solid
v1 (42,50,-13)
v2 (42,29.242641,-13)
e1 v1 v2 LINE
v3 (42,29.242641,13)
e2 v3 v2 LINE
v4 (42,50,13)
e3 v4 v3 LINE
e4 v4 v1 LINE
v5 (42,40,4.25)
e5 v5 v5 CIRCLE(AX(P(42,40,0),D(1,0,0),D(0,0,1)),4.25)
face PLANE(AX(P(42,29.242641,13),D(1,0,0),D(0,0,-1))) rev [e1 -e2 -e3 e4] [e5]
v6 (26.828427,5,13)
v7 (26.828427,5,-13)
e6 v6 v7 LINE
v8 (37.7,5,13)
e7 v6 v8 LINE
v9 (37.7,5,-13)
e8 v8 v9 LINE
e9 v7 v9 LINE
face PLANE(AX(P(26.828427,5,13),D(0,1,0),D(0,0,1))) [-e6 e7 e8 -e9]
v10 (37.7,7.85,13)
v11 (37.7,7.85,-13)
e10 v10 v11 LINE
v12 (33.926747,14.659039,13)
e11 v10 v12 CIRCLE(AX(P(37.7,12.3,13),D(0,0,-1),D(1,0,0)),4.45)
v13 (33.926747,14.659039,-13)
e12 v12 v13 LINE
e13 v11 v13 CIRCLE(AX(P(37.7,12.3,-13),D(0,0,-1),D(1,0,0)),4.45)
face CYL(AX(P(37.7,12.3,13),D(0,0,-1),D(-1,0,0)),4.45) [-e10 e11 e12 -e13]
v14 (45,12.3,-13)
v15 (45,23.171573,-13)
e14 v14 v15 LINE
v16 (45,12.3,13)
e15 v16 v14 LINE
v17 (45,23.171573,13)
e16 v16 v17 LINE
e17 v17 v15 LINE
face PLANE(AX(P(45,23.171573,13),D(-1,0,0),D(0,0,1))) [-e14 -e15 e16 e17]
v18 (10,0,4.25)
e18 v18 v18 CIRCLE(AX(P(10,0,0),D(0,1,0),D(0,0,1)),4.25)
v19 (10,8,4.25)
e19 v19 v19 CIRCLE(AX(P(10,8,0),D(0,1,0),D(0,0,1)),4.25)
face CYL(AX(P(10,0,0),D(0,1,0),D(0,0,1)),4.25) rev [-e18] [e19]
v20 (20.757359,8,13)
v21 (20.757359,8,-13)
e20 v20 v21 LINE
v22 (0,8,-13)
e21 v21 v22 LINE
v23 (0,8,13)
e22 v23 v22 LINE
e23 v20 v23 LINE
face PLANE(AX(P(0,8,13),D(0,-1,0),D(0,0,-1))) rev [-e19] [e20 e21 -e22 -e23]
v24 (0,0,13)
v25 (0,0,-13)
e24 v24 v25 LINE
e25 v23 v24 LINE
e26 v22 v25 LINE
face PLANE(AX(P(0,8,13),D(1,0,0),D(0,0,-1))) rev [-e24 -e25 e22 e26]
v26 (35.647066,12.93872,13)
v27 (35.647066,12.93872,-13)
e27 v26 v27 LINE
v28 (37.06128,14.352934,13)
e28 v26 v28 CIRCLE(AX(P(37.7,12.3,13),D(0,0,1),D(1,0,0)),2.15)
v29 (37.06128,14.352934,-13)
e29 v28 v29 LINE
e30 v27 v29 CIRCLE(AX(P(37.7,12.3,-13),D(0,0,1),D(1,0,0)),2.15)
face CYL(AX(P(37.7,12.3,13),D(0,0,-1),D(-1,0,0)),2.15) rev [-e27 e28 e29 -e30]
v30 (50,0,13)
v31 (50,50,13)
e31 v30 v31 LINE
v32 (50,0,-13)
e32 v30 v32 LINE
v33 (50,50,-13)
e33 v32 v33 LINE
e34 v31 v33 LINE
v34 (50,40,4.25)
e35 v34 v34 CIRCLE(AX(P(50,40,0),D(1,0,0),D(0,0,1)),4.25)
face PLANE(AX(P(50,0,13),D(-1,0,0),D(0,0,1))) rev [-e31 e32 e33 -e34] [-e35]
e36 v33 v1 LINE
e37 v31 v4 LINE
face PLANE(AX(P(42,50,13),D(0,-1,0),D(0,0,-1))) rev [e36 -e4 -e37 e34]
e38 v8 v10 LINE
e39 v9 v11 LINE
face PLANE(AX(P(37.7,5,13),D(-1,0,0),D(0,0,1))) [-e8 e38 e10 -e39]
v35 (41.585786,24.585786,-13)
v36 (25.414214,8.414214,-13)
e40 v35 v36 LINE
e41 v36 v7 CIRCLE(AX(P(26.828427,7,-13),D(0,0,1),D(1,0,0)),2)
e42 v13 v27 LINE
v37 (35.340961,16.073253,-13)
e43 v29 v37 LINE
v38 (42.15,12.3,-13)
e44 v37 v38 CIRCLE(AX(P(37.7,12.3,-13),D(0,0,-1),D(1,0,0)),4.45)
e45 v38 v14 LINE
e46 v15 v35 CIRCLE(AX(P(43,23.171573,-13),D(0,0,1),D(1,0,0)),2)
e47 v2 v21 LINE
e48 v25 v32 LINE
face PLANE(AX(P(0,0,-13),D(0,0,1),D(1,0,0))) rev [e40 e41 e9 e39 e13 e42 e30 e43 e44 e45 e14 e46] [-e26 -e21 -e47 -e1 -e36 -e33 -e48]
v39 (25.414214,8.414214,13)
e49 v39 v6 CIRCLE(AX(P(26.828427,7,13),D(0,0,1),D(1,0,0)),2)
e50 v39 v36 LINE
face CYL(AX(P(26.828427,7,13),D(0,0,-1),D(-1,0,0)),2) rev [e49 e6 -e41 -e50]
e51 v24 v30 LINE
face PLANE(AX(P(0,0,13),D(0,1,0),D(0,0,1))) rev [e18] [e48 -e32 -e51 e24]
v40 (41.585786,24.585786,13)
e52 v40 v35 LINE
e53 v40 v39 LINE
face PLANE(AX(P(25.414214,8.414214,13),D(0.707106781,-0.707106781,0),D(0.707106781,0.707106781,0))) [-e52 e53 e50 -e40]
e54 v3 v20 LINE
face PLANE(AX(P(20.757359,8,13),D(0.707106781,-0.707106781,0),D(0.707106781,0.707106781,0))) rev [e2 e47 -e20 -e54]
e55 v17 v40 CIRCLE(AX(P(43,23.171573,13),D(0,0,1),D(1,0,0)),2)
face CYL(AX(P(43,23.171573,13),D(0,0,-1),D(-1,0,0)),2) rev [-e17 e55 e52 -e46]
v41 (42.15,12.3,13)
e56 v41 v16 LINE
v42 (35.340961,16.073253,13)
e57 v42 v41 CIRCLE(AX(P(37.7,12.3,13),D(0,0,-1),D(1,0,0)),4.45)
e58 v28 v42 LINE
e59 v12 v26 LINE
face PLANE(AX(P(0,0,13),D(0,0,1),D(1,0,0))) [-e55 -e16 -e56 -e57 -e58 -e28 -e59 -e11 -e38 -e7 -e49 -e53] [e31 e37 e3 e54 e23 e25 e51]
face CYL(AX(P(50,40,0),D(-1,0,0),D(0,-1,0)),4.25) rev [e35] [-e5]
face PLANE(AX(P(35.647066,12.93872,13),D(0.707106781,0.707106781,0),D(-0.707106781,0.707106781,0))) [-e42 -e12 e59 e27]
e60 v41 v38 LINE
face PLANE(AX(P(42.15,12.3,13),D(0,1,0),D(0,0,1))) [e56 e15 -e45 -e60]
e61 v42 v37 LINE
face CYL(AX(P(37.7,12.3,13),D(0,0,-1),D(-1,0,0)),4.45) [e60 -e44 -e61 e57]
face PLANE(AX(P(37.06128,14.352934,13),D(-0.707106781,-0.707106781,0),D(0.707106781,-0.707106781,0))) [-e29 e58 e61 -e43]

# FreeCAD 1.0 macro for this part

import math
import FreeCAD as App
import Part
import Sketcher

V = App.Vector

doc = App.newDocument("Part")
body = doc.addObject("PartDesign::Body", "Body")

# Sketch on XY plane
sketch1 = doc.addObject("Sketcher::SketchObject", "Sketch")
body.addObject(sketch1)
sketch1.AttachmentSupport = (doc.XY_Plane, [""])
sketch1.MapMode = "FlatFace"
sketch1.addGeometry([
    Part.LineSegment(V(0, 0, 0), V(50, 0, 0)),  # 0
    Part.LineSegment(V(50, 0, 0), V(50, 50, 0)),  # 1
    Part.LineSegment(V(50, 50, 0), V(42, 50, 0)),  # 2
    Part.LineSegment(V(42, 50, 0), V(42, 29.2, 0)),  # 3
    Part.LineSegment(V(42, 29.2, 0), V(20.8, 8, 0)),  # 4
    Part.LineSegment(V(20.8, 8, 0), V(0, 8, 0)),  # 5
    Part.LineSegment(V(0, 8, 0), V(0, 0, 0)),  # 6
    Part.LineSegment(V(35.3, 16.1, 0), V(37.1, 14.4, 0)),  # 7
    Part.ArcOfCircle(Part.Circle(V(37.7, 12.3, 0), V(0, 0, 1), 2.1), math.radians(163), math.radians(467)),  # 8
    Part.LineSegment(V(35.6, 12.9, 0), V(33.9, 14.7, 0)),  # 9
    Part.ArcOfCircle(Part.Circle(V(37.7, 12.3, 0), V(0, 0, 1), 4.5), math.radians(148), math.radians(270)),  # 10
    Part.LineSegment(V(37.7, 7.8, 0), V(37.7, 5, 0)),  # 11
    Part.LineSegment(V(37.7, 5, 0), V(26.8, 5, 0)),  # 12
    Part.ArcOfCircle(Part.Circle(V(26.8, 7, 0), V(0, 0, 1), 2), math.radians(135), math.radians(270)),  # 13
    Part.LineSegment(V(25.4, 8.4, 0), V(41.6, 24.6, 0)),  # 14
    Part.ArcOfCircle(Part.Circle(V(43, 23.2, 0), V(0, 0, 1), 2), math.radians(0), math.radians(135)),  # 15
    Part.LineSegment(V(45, 23.2, 0), V(45, 12.3, 0)),  # 16
    Part.LineSegment(V(45, 12.3, 0), V(42.1, 12.3, 0)),  # 17
    Part.ArcOfCircle(Part.Circle(V(37.7, 12.3, 0), V(0, 0, 1), 4.5), math.radians(0), math.radians(122)),  # 18
], False)
sketch1.addConstraint([
    Sketcher.Constraint("Coincident", 0, 2, 1, 1),
    Sketcher.Constraint("Coincident", 1, 2, 2, 1),
    Sketcher.Constraint("Coincident", 2, 2, 3, 1),
    Sketcher.Constraint("Coincident", 3, 2, 4, 1),
    Sketcher.Constraint("Coincident", 4, 2, 5, 1),
    Sketcher.Constraint("Coincident", 5, 2, 6, 1),
    Sketcher.Constraint("Coincident", 6, 2, 0, 1),
    Sketcher.Constraint("Coincident", 7, 2, 8, 2),
    Sketcher.Constraint("Coincident", 8, 1, 9, 1),
    Sketcher.Constraint("Coincident", 9, 2, 10, 1),
    Sketcher.Constraint("Coincident", 10, 2, 11, 1),
    Sketcher.Constraint("Coincident", 11, 2, 12, 1),
    Sketcher.Constraint("Tangent", 12, 2, 13, 2),
    Sketcher.Constraint("Tangent", 13, 1, 14, 1),
    Sketcher.Constraint("Tangent", 14, 2, 15, 2),
    Sketcher.Constraint("Tangent", 15, 1, 16, 1),
    Sketcher.Constraint("Coincident", 16, 2, 17, 1),
    Sketcher.Constraint("Coincident", 17, 2, 18, 1),
    Sketcher.Constraint("Coincident", 18, 2, 7, 1),
    Sketcher.Constraint("Horizontal", 0),
    Sketcher.Constraint("Vertical", 1),
    Sketcher.Constraint("Horizontal", 2),
    Sketcher.Constraint("Vertical", 3),
    Sketcher.Constraint("Horizontal", 5),
    Sketcher.Constraint("Vertical", 6),
    Sketcher.Constraint("Vertical", 11),
    Sketcher.Constraint("Horizontal", 12),
    Sketcher.Constraint("Vertical", 16),
    Sketcher.Constraint("Horizontal", 17),
    Sketcher.Constraint("Coincident", 6, 2, -1, 1),
    Sketcher.Constraint("Coincident", 10, 3, 8, 3),
    Sketcher.Constraint("Coincident", 18, 3, 8, 3),
    Sketcher.Constraint("Equal", 13, 15),
    Sketcher.Constraint("Equal", 10, 18),
    Sketcher.Constraint("Perpendicular", 4, 7),
    Sketcher.Constraint("Parallel", 7, 9),
    Sketcher.Constraint("Perpendicular", 9, 14),
    Sketcher.Constraint("Horizontal", 18, 3, 16, 2),
    Sketcher.Constraint("Vertical", 18, 3, 10, 2),
    Sketcher.Constraint("Equal", 0, 1),
    Sketcher.Constraint("Equal", 5, 3),
    Sketcher.Constraint("Equal", 2, 6),
    Sketcher.Constraint("Equal", 17, 11),
    Sketcher.Constraint("Equal", 7, 9),
    Sketcher.Constraint("Radius", 13, 2.0),
    Sketcher.Constraint("DistanceX", 0, 1, 0, 2, 50.0),
    Sketcher.Constraint("DistanceX", 2, 2, 2, 1, 8.0),
    Sketcher.Constraint("Radius", 8, 2.15),
    Sketcher.Constraint("Radius", 10, 4.45),
    Sketcher.Constraint("DistanceY", -1, 1, 13, 3, 7.0),
    Sketcher.Constraint("DistanceX", -1, 1, 15, 3, 43.0),
    Sketcher.Constraint("DistanceX", 17, 2, 17, 1, 2.85),
    Sketcher.Constraint("Distance", 7, 2.432898),
    Sketcher.Constraint("DistanceX", 5, 2, 5, 1, 20.757359),
    Sketcher.Constraint("DistanceX", 12, 2, 12, 1, 10.871573),
])
pad1 = doc.addObject("PartDesign::Pad", "Pad")
body.addObject(pad1)
pad1.Profile = sketch1
pad1.Length = 26
pad1.Midplane = True

# Sketch on XZ plane
sketch2 = doc.addObject("Sketcher::SketchObject", "Sketch001")
body.addObject(sketch2)
sketch2.AttachmentSupport = (doc.XZ_Plane, [""])
sketch2.MapMode = "FlatFace"
sketch2.AttachmentOffset = App.Placement(V(0, 0, -8), App.Rotation())
sketch2.addGeometry(Part.Circle(V(10, 0, 0), V(0, 0, 1), 4.2), False)
sketch2.addConstraint([
    Sketcher.Constraint("PointOnObject", 0, 3, -1),
    Sketcher.Constraint("Diameter", 0, 8.5),
    Sketcher.Constraint("DistanceX", -1, 1, 0, 3, 10.0),
])
pocket1 = doc.addObject("PartDesign::Pocket", "Pocket")
body.addObject(pocket1)
pocket1.Profile = sketch2
pocket1.Type = "ThroughAll"
pocket1.Reversed = True
doc.recompute()

datumplane = doc.addObject("PartDesign::Plane", "DatumPlane")
body.addObject(datumplane)
datumplane.Placement = App.Placement(V(25, 25, 0), App.Rotation(V(-0.707106781, 0.707106781, 0), V(0, 0, -1), V(-0.707106781, -0.707106781, 0), "ZXY"))
mirrored = doc.addObject("PartDesign::Mirrored", "Mirrored")
body.addObject(mirrored)
mirrored.Originals = [pocket1]
mirrored.MirrorPlane = (datumplane, [""])
body.Tip = mirrored

doc.recompute()
